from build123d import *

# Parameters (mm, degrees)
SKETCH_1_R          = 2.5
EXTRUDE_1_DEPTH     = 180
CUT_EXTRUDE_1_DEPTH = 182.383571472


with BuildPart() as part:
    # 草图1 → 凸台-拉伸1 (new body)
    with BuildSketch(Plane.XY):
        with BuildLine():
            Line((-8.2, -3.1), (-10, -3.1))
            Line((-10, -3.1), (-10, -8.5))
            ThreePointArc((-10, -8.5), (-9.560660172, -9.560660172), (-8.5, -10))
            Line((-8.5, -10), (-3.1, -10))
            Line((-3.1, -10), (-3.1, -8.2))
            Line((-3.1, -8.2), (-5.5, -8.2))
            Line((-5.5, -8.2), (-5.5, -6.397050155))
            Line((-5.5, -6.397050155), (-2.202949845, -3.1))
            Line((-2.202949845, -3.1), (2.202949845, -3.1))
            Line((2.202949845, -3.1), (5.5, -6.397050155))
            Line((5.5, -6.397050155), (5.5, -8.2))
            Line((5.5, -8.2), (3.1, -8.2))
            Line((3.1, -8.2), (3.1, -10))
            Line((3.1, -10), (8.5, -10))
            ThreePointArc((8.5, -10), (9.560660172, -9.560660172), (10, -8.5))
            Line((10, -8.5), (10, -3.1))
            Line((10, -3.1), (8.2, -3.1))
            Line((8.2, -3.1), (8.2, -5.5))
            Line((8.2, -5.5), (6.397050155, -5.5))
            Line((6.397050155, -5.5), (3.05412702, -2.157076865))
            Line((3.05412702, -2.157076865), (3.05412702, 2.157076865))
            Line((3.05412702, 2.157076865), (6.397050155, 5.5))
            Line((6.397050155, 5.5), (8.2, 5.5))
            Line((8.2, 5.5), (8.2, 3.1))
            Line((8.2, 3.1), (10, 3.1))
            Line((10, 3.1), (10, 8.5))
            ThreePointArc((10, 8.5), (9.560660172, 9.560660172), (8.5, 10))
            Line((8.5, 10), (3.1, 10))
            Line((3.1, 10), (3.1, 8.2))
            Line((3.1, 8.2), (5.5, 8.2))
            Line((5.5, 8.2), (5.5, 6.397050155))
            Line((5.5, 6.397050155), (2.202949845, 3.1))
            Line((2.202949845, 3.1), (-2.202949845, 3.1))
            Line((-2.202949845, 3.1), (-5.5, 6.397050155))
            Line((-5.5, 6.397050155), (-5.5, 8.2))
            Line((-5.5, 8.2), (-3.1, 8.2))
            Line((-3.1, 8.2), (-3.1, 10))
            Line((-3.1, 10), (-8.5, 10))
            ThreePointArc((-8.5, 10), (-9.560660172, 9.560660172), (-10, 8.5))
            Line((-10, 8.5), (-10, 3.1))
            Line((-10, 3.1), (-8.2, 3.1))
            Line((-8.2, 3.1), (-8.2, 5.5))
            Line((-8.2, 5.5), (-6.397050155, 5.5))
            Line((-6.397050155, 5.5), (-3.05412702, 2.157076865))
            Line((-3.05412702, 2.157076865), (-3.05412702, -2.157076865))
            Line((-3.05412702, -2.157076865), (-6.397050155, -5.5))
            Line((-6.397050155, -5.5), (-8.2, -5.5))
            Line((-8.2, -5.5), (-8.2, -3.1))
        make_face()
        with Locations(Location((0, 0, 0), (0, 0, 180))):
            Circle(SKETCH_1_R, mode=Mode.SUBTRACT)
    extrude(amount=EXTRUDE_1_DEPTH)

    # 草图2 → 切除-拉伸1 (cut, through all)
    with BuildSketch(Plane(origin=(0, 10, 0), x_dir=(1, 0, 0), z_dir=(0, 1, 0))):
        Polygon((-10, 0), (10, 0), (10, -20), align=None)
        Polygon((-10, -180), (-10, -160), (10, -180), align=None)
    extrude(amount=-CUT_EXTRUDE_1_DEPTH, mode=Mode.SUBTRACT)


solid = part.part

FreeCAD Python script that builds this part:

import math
import FreeCAD as App
import Part
import Sketcher
from FreeCAD import Vector
Q = App.Units.Quantity

doc = App.newDocument("Part")
body = doc.addObject("PartDesign::Body", "Body")

sketch1 = body.newObject("Sketcher::SketchObject", "Sketch")
sketch1.AttachmentSupport = (doc.getObject("XY_Plane"), [""])
sketch1.MapMode = "FlatFace"
sketch1.addGeometry(Part.LineSegment(Vector(-8.2, -3.1, 0), Vector(-10, -3.1, 0)), False)
sketch1.addGeometry(Part.LineSegment(Vector(-10, -3.1, 0), Vector(-10, -8.5, 0)), False)
sketch1.addGeometry(Part.ArcOfCircle(Part.Circle(Vector(-8.5, -8.5, 0), Vector(0, 0, 1), 1.5), math.radians(180), math.radians(270)), False)
sketch1.addGeometry(Part.LineSegment(Vector(-8.5, -10, 0), Vector(-3.1, -10, 0)), False)
sketch1.addGeometry(Part.LineSegment(Vector(-3.1, -10, 0), Vector(-3.1, -8.2, 0)), False)
sketch1.addGeometry(Part.LineSegment(Vector(-3.1, -8.2, 0), Vector(-5.5, -8.2, 0)), False)
sketch1.addGeometry(Part.LineSegment(Vector(-5.5, -8.2, 0), Vector(-5.5, -6.4, 0)), False)
sketch1.addGeometry(Part.LineSegment(Vector(-5.5, -6.4, 0), Vector(-2.2, -3.1, 0)), False)
sketch1.addGeometry(Part.LineSegment(Vector(-2.2, -3.1, 0), Vector(2.2, -3.1, 0)), False)
sketch1.addGeometry(Part.LineSegment(Vector(2.2, -3.1, 0), Vector(5.5, -6.4, 0)), False)
sketch1.addGeometry(Part.LineSegment(Vector(5.5, -6.4, 0), Vector(5.5, -8.2, 0)), False)
sketch1.addGeometry(Part.LineSegment(Vector(5.5, -8.2, 0), Vector(3.1, -8.2, 0)), False)
sketch1.addGeometry(Part.LineSegment(Vector(3.1, -8.2, 0), Vector(3.1, -10, 0)), False)
sketch1.addGeometry(Part.LineSegment(Vector(3.1, -10, 0), Vector(8.5, -10, 0)), False)
sketch1.addGeometry(Part.ArcOfCircle(Part.Circle(Vector(8.5, -8.5, 0), Vector(0, 0, 1), 1.5), math.radians(-90), math.radians(0)), False)
sketch1.addGeometry(Part.LineSegment(Vector(10, -8.5, 0), Vector(10, -3.1, 0)), False)
sketch1.addGeometry(Part.LineSegment(Vector(10, -3.1, 0), Vector(8.2, -3.1, 0)), False)
sketch1.addGeometry(Part.LineSegment(Vector(8.2, -3.1, 0), Vector(8.2, -5.5, 0)), False)
sketch1.addGeometry(Part.LineSegment(Vector(8.2, -5.5, 0), Vector(6.4, -5.5, 0)), False)
sketch1.addGeometry(Part.LineSegment(Vector(6.4, -5.5, 0), Vector(3.1, -2.2, 0)), False)
sketch1.addGeometry(Part.LineSegment(Vector(3.1, -2.2, 0), Vector(3.1, 2.2, 0)), False)
sketch1.addGeometry(Part.LineSegment(Vector(3.1, 2.2, 0), Vector(6.4, 5.5, 0)), False)
sketch1.addGeometry(Part.LineSegment(Vector(6.4, 5.5, 0), Vector(8.2, 5.5, 0)), False)
sketch1.addGeometry(Part.LineSegment(Vector(8.2, 5.5, 0), Vector(8.2, 3.1, 0)), False)
sketch1.addGeometry(Part.LineSegment(Vector(8.2, 3.1, 0), Vector(10, 3.1, 0)), False)
sketch1.addGeometry(Part.LineSegment(Vector(10, 3.1, 0), Vector(10, 8.5, 0)), False)
sketch1.addGeometry(Part.ArcOfCircle(Part.Circle(Vector(8.5, 8.5, 0), Vector(0, 0, 1), 1.5), math.radians(0), math.radians(90)), False)
sketch1.addGeometry(Part.LineSegment(Vector(8.5, 10, 0), Vector(3.1, 10, 0)), False)
sketch1.addGeometry(Part.LineSegment(Vector(3.1, 10, 0), Vector(3.1, 8.2, 0)), False)
sketch1.addGeometry(Part.LineSegment(Vector(3.1, 8.2, 0), Vector(5.5, 8.2, 0)), False)
sketch1.addGeometry(Part.LineSegment(Vector(5.5, 8.2, 0), Vector(5.5, 6.4, 0)), False)
sketch1.addGeometry(Part.LineSegment(Vector(5.5, 6.4, 0), Vector(2.2, 3.1, 0)), False)
sketch1.addGeometry(Part.LineSegment(Vector(2.2, 3.1, 0), Vector(-2.2, 3.1, 0)), False)
sketch1.addGeometry(Part.LineSegment(Vector(-2.2, 3.1, 0), Vector(-5.5, 6.4, 0)), False)
sketch1.addGeometry(Part.LineSegment(Vector(-5.5, 6.4, 0), Vector(-5.5, 8.2, 0)), False)
sketch1.addGeometry(Part.LineSegment(Vector(-5.5, 8.2, 0), Vector(-3.1, 8.2, 0)), False)
sketch1.addGeometry(Part.LineSegment(Vector(-3.1, 8.2, 0), Vector(-3.1, 10, 0)), False)
sketch1.addGeometry(Part.LineSegment(Vector(-3.1, 10, 0), Vector(-8.5, 10, 0)), False)
sketch1.addGeometry(Part.ArcOfCircle(Part.Circle(Vector(-8.5, 8.5, 0), Vector(0, 0, 1), 1.5), math.radians(90), math.radians(180)), False)
sketch1.addGeometry(Part.LineSegment(Vector(-10, 8.5, 0), Vector(-10, 3.1, 0)), False)
sketch1.addGeometry(Part.LineSegment(Vector(-10, 3.1, 0), Vector(-8.2, 3.1, 0)), False)
sketch1.addGeometry(Part.LineSegment(Vector(-8.2, 3.1, 0), Vector(-8.2, 5.5, 0)), False)
sketch1.addGeometry(Part.LineSegment(Vector(-8.2, 5.5, 0), Vector(-6.4, 5.5, 0)), False)
sketch1.addGeometry(Part.LineSegment(Vector(-6.4, 5.5, 0), Vector(-3.1, 2.2, 0)), False)
sketch1.addGeometry(Part.LineSegment(Vector(-3.1, 2.2, 0), Vector(-3.1, -2.2, 0)), False)
sketch1.addGeometry(Part.LineSegment(Vector(-3.1, -2.2, 0), Vector(-6.4, -5.5, 0)), False)
sketch1.addGeometry(Part.LineSegment(Vector(-6.4, -5.5, 0), Vector(-8.2, -5.5, 0)), False)
sketch1.addGeometry(Part.LineSegment(Vector(-8.2, -5.5, 0), Vector(-8.2, -3.1, 0)), False)
sketch1.addGeometry(Part.Circle(Vector(0, 0, 0), Vector(0, 0, 1), 2.5), False)
sketch1.addConstraint(Sketcher.Constraint("Coincident", 0, 2, 1, 1))
sketch1.addConstraint(Sketcher.Constraint("Tangent", 1, 2, 2, 1))
sketch1.addConstraint(Sketcher.Constraint("Tangent", 2, 2, 3, 1))
sketch1.addConstraint(Sketcher.Constraint("Coincident", 3, 2, 4, 1))
sketch1.addConstraint(Sketcher.Constraint("Coincident", 4, 2, 5, 1))
sketch1.addConstraint(Sketcher.Constraint("Coincident", 5, 2, 6, 1))
sketch1.addConstraint(Sketcher.Constraint("Coincident", 6, 2, 7, 1))
sketch1.addConstraint(Sketcher.Constraint("Coincident", 7, 2, 8, 1))
sketch1.addConstraint(Sketcher.Constraint("Coincident", 8, 2, 9, 1))
sketch1.addConstraint(Sketcher.Constraint("Coincident", 9, 2, 10, 1))
sketch1.addConstraint(Sketcher.Constraint("Coincident", 10, 2, 11, 1))
sketch1.addConstraint(Sketcher.Constraint("Coincident", 11, 2, 12, 1))
sketch1.addConstraint(Sketcher.Constraint("Coincident", 12, 2, 13, 1))
sketch1.addConstraint(Sketcher.Constraint("Tangent", 13, 2, 14, 1))
sketch1.addConstraint(Sketcher.Constraint("Tangent", 14, 2, 15, 1))
sketch1.addConstraint(Sketcher.Constraint("Coincident", 15, 2, 16, 1))
sketch1.addConstraint(Sketcher.Constraint("Coincident", 16, 2, 17, 1))
sketch1.addConstraint(Sketcher.Constraint("Coincident", 17, 2, 18, 1))
sketch1.addConstraint(Sketcher.Constraint("Coincident", 18, 2, 19, 1))
sketch1.addConstraint(Sketcher.Constraint("Coincident", 19, 2, 20, 1))
sketch1.addConstraint(Sketcher.Constraint("Coincident", 20, 2, 21, 1))
sketch1.addConstraint(Sketcher.Constraint("Coincident", 21, 2, 22, 1))
sketch1.addConstraint(Sketcher.Constraint("Coincident", 22, 2, 23, 1))
sketch1.addConstraint(Sketcher.Constraint("Coincident", 23, 2, 24, 1))
sketch1.addConstraint(Sketcher.Constraint("Coincident", 24, 2, 25, 1))
sketch1.addConstraint(Sketcher.Constraint("Tangent", 25, 2, 26, 1))
sketch1.addConstraint(Sketcher.Constraint("Tangent", 26, 2, 27, 1))
sketch1.addConstraint(Sketcher.Constraint("Coincident", 27, 2, 28, 1))
sketch1.addConstraint(Sketcher.Constraint("Coincident", 28, 2, 29, 1))
sketch1.addConstraint(Sketcher.Constraint("Coincident", 29, 2, 30, 1))
sketch1.addConstraint(Sketcher.Constraint("Coincident", 30, 2, 31, 1))
sketch1.addConstraint(Sketcher.Constraint("Coincident", 31, 2, 32, 1))
sketch1.addConstraint(Sketcher.Constraint("Coincident", 32, 2, 33, 1))
sketch1.addConstraint(Sketcher.Constraint("Coincident", 33, 2, 34, 1))
sketch1.addConstraint(Sketcher.Constraint("Coincident", 34, 2, 35, 1))
sketch1.addConstraint(Sketcher.Constraint("Coincident", 35, 2, 36, 1))
sketch1.addConstraint(Sketcher.Constraint("Coincident", 36, 2, 37, 1))
sketch1.addConstraint(Sketcher.Constraint("Tangent", 37, 2, 38, 1))
sketch1.addConstraint(Sketcher.Constraint("Tangent", 38, 2, 39, 1))
sketch1.addConstraint(Sketcher.Constraint("Coincident", 39, 2, 40, 1))
sketch1.addConstraint(Sketcher.Constraint("Coincident", 40, 2, 41, 1))
sketch1.addConstraint(Sketcher.Constraint("Coincident", 41, 2, 42, 1))
sketch1.addConstraint(Sketcher.Constraint("Coincident", 42, 2, 43, 1))
sketch1.addConstraint(Sketcher.Constraint("Coincident", 43, 2, 44, 1))
sketch1.addConstraint(Sketcher.Constraint("Coincident", 44, 2, 45, 1))
sketch1.addConstraint(Sketcher.Constraint("Coincident", 45, 2, 46, 1))
sketch1.addConstraint(Sketcher.Constraint("Coincident", 46, 2, 47, 1))
sketch1.addConstraint(Sketcher.Constraint("Coincident", 47, 2, 0, 1))
sketch1.addConstraint(Sketcher.Constraint("Horizontal", 0))
sketch1.addConstraint(Sketcher.Constraint("Vertical", 1))
sketch1.addConstraint(Sketcher.Constraint("Horizontal", 3))
sketch1.addConstraint(Sketcher.Constraint("Vertical", 4))
sketch1.addConstraint(Sketcher.Constraint("Horizontal", 5))
sketch1.addConstraint(Sketcher.Constraint("Vertical", 6))
sketch1.addConstraint(Sketcher.Constraint("Horizontal", 8))
sketch1.addConstraint(Sketcher.Constraint("Vertical", 10))
sketch1.addConstraint(Sketcher.Constraint("Horizontal", 11))
sketch1.addConstraint(Sketcher.Constraint("Vertical", 12))
sketch1.addConstraint(Sketcher.Constraint("Horizontal", 13))
sketch1.addConstraint(Sketcher.Constraint("Vertical", 15))
sketch1.addConstraint(Sketcher.Constraint("Horizontal", 16))
sketch1.addConstraint(Sketcher.Constraint("Vertical", 17))
sketch1.addConstraint(Sketcher.Constraint("Horizontal", 18))
sketch1.addConstraint(Sketcher.Constraint("Vertical", 20))
sketch1.addConstraint(Sketcher.Constraint("Horizontal", 22))
sketch1.addConstraint(Sketcher.Constraint("Vertical", 23))
sketch1.addConstraint(Sketcher.Constraint("Horizontal", 24))
sketch1.addConstraint(Sketcher.Constraint("Vertical", 25))
sketch1.addConstraint(Sketcher.Constraint("Horizontal", 27))
sketch1.addConstraint(Sketcher.Constraint("Vertical", 28))
sketch1.addConstraint(Sketcher.Constraint("Horizontal", 29))
sketch1.addConstraint(Sketcher.Constraint("Vertical", 30))
sketch1.addConstraint(Sketcher.Constraint("Horizontal", 32))
sketch1.addConstraint(Sketcher.Constraint("Vertical", 34))
sketch1.addConstraint(Sketcher.Constraint("Horizontal", 35))
sketch1.addConstraint(Sketcher.Constraint("Vertical", 36))
sketch1.addConstraint(Sketcher.Constraint("Horizontal", 37))
sketch1.addConstraint(Sketcher.Constraint("Vertical", 39))
sketch1.addConstraint(Sketcher.Constraint("Horizontal", 40))
sketch1.addConstraint(Sketcher.Constraint("Vertical", 41))
sketch1.addConstraint(Sketcher.Constraint("Horizontal", 42))
sketch1.addConstraint(Sketcher.Constraint("Vertical", 44))
sketch1.addConstraint(Sketcher.Constraint("Horizontal", 46))
sketch1.addConstraint(Sketcher.Constraint("Vertical", 47))
sketch1.addConstraint(Sketcher.Constraint("Coincident", 48, 3, -1, 1))
sketch1.addConstraint(Sketcher.Constraint("Equal", 2, 14))
sketch1.addConstraint(Sketcher.Constraint("Equal", 14, 26))
sketch1.addConstraint(Sketcher.Constraint("Equal", 26, 38))
sketch1.addConstraint(Sketcher.Constraint("Symmetric", 2, 3, 26, 3, -1, 1))
sketch1.addConstraint(Sketcher.Constraint("Symmetric", 14, 3, 38, 3, -1, 1))
sketch1.addConstraint(Sketcher.Constraint("Symmetric", 4, 2, 28, 2, -1, 1))
sketch1.addConstraint(Sketcher.Constraint("Symmetric", 6, 2, 30, 2, -1, 1))
sketch1.addConstraint(Sketcher.Constraint("Symmetric", 7, 2, 31, 2, -1, 1))
sketch1.addConstraint(Sketcher.Constraint("Symmetric", 9, 2, 33, 2, -1, 1))
sketch1.addConstraint(Sketcher.Constraint("Symmetric", 11, 2, 35, 2, -1, 1))
sketch1.addConstraint(Sketcher.Constraint("Symmetric", 16, 2, 40, 2, -1, 1))
sketch1.addConstraint(Sketcher.Constraint("Symmetric", 18, 2, 42, 2, -1, 1))
sketch1.addConstraint(Sketcher.Constraint("Symmetric", 19, 2, 43, 2, -1, 1))
sketch1.addConstraint(Sketcher.Constraint("Symmetric", 21, 2, 45, 2, -1, 1))
sketch1.addConstraint(Sketcher.Constraint("Symmetric", 23, 2, 47, 2, -1, 1))
sketch1.addConstraint(Sketcher.Constraint("Symmetric", 2, 3, 14, 3, -2))
sketch1.addConstraint(Sketcher.Constraint("Symmetric", 6, 2, 9, 2, -2))
sketch1.addConstraint(Sketcher.Constraint("Symmetric", 4, 2, 11, 2, -2))
sketch1.addConstraint(Sketcher.Constraint("Symmetric", 23, 2, 40, 2, -2))
sketch1.addConstraint(Sketcher.Constraint("Symmetric", 21, 2, 42, 2, -2))
sketch1.addConstraint(Sketcher.Constraint("Perpendicular", 7, 9))
sketch1.addConstraint(Sketcher.Constraint("Parallel", 9, 19))
sketch1.addConstraint(Sketcher.Constraint("Perpendicular", 19, 21))
sketch1.addConstraint(Sketcher.Constraint("Perpendicular", 31, 33))
sketch1.addConstraint(Sketcher.Constraint("Perpendicular", 43, 45))
sketch1.addConstraint(Sketcher.Constraint("Horizontal", 0, 2, 7, 2))
sketch1.addConstraint(Sketcher.Constraint("Horizontal", 20, 2, 43, 2))
sketch1.addConstraint(Sketcher.Constraint("Equal", 37, 1))
sketch1.addConstraint(Sketcher.Constraint("Equal", 40, 4))
sketch1.addConstraint(Sketcher.Constraint("Equal", 46, 6))
sketch1.addConstraint(Sketcher.Constraint("Equal", 35, 17))
sketch1.addConstraint(Sketcher.Constraint("Diameter", 48, Q("5 mm")))
sketch1.addConstraint(Sketcher.Constraint("Radius", 2, Q("1.5 mm")))
sketch1.addConstraint(Sketcher.Constraint("DistanceX", 0, 2, 0, 1, Q("1.8 mm")))
sketch1.addConstraint(Sketcher.Constraint("DistanceX", 3, 1, 3, 2, Q("5.4 mm")))
sketch1.addConstraint(Sketcher.Constraint("DistanceX", 5, 2, 5, 1, Q("2.4 mm")))
sketch1.addConstraint(Sketcher.Constraint("DistanceX", 0, 2, -1, 1, Q("10 mm")))
sketch1.addConstraint(Sketcher.Constraint("DistanceY", 2, 2, -1, 1, Q("10 mm")))
sketch1.addConstraint(Sketcher.Constraint("DistanceX", 8, 1, 8, 2, Q("4.4059 mm")))
sketch1.addConstraint(Sketcher.Constraint("DistanceY", 20, 1, 20, 2, Q("4.314154 mm")))
pad1 = body.newObject("PartDesign::Pad", "Pad")
pad1.Profile = sketch1
pad1.Length = 180

sketch2 = body.newObject("Sketcher::SketchObject", "Sketch001")
sketch2.AttachmentSupport = (doc.getObject("XZ_Plane"), [""])
sketch2.MapMode = "FlatFace"
sketch2.AttachmentOffset = App.Placement(Vector(0, 0, -10), App.Rotation())
sketch2.addGeometry(Part.LineSegment(Vector(10, 0, 0), Vector(-10, 0, 0)), False)
sketch2.addGeometry(Part.LineSegment(Vector(-10, 0, 0), Vector(10, 20, 0)), False)
sketch2.addGeometry(Part.LineSegment(Vector(10, 20, 0), Vector(10, 0, 0)), False)
sketch2.addGeometry(Part.LineSegment(Vector(-10, 160, 0), Vector(-10, 180, 0)), False)
sketch2.addGeometry(Part.LineSegment(Vector(-10, 180, 0), Vector(10, 180, 0)), False)
sketch2.addGeometry(Part.LineSegment(Vector(10, 180, 0), Vector(-10, 160, 0)), False)
sketch2.addConstraint(Sketcher.Constraint("Coincident", 0, 2, 1, 1))
sketch2.addConstraint(Sketcher.Constraint("Coincident", 1, 2, 2, 1))
sketch2.addConstraint(Sketcher.Constraint("Coincident", 2, 2, 0, 1))
sketch2.addConstraint(Sketcher.Constraint("Coincident", 3, 2, 4, 1))
sketch2.addConstraint(Sketcher.Constraint("Coincident", 4, 2, 5, 1))
sketch2.addConstraint(Sketcher.Constraint("Coincident", 5, 2, 3, 1))
sketch2.addConstraint(Sketcher.Constraint("Horizontal", 0))
sketch2.addConstraint(Sketcher.Constraint("Vertical", 2))
sketch2.addConstraint(Sketcher.Constraint("Vertical", 3))
sketch2.addConstraint(Sketcher.Constraint("Horizontal", 4))
sketch2.addConstraint(Sketcher.Constraint("Symmetric", 0, 2, 2, 2, -1, 1))
sketch2.addConstraint(Sketcher.Constraint("Parallel", 1, 5))
sketch2.addConstraint(Sketcher.Constraint("Vertical", 0, 2, 3, 2))
sketch2.addConstraint(Sketcher.Constraint("Vertical", 2, 2, 4, 2))
sketch2.addConstraint(Sketcher.Constraint("Equal", 4, 2))
sketch2.addConstraint(Sketcher.Constraint("DistanceX", 0, 2, 0, 1, Q("20 mm")))
sketch2.addConstraint(Sketcher.Constraint("DistanceY", -1, 1, 3, 2, Q("180 mm")))
pocket1 = body.newObject("PartDesign::Pocket", "Pocket")
pocket1.Profile = sketch2
pocket1.Type = "ThroughAll"
pocket1.Reversed = True

doc.recompute()
